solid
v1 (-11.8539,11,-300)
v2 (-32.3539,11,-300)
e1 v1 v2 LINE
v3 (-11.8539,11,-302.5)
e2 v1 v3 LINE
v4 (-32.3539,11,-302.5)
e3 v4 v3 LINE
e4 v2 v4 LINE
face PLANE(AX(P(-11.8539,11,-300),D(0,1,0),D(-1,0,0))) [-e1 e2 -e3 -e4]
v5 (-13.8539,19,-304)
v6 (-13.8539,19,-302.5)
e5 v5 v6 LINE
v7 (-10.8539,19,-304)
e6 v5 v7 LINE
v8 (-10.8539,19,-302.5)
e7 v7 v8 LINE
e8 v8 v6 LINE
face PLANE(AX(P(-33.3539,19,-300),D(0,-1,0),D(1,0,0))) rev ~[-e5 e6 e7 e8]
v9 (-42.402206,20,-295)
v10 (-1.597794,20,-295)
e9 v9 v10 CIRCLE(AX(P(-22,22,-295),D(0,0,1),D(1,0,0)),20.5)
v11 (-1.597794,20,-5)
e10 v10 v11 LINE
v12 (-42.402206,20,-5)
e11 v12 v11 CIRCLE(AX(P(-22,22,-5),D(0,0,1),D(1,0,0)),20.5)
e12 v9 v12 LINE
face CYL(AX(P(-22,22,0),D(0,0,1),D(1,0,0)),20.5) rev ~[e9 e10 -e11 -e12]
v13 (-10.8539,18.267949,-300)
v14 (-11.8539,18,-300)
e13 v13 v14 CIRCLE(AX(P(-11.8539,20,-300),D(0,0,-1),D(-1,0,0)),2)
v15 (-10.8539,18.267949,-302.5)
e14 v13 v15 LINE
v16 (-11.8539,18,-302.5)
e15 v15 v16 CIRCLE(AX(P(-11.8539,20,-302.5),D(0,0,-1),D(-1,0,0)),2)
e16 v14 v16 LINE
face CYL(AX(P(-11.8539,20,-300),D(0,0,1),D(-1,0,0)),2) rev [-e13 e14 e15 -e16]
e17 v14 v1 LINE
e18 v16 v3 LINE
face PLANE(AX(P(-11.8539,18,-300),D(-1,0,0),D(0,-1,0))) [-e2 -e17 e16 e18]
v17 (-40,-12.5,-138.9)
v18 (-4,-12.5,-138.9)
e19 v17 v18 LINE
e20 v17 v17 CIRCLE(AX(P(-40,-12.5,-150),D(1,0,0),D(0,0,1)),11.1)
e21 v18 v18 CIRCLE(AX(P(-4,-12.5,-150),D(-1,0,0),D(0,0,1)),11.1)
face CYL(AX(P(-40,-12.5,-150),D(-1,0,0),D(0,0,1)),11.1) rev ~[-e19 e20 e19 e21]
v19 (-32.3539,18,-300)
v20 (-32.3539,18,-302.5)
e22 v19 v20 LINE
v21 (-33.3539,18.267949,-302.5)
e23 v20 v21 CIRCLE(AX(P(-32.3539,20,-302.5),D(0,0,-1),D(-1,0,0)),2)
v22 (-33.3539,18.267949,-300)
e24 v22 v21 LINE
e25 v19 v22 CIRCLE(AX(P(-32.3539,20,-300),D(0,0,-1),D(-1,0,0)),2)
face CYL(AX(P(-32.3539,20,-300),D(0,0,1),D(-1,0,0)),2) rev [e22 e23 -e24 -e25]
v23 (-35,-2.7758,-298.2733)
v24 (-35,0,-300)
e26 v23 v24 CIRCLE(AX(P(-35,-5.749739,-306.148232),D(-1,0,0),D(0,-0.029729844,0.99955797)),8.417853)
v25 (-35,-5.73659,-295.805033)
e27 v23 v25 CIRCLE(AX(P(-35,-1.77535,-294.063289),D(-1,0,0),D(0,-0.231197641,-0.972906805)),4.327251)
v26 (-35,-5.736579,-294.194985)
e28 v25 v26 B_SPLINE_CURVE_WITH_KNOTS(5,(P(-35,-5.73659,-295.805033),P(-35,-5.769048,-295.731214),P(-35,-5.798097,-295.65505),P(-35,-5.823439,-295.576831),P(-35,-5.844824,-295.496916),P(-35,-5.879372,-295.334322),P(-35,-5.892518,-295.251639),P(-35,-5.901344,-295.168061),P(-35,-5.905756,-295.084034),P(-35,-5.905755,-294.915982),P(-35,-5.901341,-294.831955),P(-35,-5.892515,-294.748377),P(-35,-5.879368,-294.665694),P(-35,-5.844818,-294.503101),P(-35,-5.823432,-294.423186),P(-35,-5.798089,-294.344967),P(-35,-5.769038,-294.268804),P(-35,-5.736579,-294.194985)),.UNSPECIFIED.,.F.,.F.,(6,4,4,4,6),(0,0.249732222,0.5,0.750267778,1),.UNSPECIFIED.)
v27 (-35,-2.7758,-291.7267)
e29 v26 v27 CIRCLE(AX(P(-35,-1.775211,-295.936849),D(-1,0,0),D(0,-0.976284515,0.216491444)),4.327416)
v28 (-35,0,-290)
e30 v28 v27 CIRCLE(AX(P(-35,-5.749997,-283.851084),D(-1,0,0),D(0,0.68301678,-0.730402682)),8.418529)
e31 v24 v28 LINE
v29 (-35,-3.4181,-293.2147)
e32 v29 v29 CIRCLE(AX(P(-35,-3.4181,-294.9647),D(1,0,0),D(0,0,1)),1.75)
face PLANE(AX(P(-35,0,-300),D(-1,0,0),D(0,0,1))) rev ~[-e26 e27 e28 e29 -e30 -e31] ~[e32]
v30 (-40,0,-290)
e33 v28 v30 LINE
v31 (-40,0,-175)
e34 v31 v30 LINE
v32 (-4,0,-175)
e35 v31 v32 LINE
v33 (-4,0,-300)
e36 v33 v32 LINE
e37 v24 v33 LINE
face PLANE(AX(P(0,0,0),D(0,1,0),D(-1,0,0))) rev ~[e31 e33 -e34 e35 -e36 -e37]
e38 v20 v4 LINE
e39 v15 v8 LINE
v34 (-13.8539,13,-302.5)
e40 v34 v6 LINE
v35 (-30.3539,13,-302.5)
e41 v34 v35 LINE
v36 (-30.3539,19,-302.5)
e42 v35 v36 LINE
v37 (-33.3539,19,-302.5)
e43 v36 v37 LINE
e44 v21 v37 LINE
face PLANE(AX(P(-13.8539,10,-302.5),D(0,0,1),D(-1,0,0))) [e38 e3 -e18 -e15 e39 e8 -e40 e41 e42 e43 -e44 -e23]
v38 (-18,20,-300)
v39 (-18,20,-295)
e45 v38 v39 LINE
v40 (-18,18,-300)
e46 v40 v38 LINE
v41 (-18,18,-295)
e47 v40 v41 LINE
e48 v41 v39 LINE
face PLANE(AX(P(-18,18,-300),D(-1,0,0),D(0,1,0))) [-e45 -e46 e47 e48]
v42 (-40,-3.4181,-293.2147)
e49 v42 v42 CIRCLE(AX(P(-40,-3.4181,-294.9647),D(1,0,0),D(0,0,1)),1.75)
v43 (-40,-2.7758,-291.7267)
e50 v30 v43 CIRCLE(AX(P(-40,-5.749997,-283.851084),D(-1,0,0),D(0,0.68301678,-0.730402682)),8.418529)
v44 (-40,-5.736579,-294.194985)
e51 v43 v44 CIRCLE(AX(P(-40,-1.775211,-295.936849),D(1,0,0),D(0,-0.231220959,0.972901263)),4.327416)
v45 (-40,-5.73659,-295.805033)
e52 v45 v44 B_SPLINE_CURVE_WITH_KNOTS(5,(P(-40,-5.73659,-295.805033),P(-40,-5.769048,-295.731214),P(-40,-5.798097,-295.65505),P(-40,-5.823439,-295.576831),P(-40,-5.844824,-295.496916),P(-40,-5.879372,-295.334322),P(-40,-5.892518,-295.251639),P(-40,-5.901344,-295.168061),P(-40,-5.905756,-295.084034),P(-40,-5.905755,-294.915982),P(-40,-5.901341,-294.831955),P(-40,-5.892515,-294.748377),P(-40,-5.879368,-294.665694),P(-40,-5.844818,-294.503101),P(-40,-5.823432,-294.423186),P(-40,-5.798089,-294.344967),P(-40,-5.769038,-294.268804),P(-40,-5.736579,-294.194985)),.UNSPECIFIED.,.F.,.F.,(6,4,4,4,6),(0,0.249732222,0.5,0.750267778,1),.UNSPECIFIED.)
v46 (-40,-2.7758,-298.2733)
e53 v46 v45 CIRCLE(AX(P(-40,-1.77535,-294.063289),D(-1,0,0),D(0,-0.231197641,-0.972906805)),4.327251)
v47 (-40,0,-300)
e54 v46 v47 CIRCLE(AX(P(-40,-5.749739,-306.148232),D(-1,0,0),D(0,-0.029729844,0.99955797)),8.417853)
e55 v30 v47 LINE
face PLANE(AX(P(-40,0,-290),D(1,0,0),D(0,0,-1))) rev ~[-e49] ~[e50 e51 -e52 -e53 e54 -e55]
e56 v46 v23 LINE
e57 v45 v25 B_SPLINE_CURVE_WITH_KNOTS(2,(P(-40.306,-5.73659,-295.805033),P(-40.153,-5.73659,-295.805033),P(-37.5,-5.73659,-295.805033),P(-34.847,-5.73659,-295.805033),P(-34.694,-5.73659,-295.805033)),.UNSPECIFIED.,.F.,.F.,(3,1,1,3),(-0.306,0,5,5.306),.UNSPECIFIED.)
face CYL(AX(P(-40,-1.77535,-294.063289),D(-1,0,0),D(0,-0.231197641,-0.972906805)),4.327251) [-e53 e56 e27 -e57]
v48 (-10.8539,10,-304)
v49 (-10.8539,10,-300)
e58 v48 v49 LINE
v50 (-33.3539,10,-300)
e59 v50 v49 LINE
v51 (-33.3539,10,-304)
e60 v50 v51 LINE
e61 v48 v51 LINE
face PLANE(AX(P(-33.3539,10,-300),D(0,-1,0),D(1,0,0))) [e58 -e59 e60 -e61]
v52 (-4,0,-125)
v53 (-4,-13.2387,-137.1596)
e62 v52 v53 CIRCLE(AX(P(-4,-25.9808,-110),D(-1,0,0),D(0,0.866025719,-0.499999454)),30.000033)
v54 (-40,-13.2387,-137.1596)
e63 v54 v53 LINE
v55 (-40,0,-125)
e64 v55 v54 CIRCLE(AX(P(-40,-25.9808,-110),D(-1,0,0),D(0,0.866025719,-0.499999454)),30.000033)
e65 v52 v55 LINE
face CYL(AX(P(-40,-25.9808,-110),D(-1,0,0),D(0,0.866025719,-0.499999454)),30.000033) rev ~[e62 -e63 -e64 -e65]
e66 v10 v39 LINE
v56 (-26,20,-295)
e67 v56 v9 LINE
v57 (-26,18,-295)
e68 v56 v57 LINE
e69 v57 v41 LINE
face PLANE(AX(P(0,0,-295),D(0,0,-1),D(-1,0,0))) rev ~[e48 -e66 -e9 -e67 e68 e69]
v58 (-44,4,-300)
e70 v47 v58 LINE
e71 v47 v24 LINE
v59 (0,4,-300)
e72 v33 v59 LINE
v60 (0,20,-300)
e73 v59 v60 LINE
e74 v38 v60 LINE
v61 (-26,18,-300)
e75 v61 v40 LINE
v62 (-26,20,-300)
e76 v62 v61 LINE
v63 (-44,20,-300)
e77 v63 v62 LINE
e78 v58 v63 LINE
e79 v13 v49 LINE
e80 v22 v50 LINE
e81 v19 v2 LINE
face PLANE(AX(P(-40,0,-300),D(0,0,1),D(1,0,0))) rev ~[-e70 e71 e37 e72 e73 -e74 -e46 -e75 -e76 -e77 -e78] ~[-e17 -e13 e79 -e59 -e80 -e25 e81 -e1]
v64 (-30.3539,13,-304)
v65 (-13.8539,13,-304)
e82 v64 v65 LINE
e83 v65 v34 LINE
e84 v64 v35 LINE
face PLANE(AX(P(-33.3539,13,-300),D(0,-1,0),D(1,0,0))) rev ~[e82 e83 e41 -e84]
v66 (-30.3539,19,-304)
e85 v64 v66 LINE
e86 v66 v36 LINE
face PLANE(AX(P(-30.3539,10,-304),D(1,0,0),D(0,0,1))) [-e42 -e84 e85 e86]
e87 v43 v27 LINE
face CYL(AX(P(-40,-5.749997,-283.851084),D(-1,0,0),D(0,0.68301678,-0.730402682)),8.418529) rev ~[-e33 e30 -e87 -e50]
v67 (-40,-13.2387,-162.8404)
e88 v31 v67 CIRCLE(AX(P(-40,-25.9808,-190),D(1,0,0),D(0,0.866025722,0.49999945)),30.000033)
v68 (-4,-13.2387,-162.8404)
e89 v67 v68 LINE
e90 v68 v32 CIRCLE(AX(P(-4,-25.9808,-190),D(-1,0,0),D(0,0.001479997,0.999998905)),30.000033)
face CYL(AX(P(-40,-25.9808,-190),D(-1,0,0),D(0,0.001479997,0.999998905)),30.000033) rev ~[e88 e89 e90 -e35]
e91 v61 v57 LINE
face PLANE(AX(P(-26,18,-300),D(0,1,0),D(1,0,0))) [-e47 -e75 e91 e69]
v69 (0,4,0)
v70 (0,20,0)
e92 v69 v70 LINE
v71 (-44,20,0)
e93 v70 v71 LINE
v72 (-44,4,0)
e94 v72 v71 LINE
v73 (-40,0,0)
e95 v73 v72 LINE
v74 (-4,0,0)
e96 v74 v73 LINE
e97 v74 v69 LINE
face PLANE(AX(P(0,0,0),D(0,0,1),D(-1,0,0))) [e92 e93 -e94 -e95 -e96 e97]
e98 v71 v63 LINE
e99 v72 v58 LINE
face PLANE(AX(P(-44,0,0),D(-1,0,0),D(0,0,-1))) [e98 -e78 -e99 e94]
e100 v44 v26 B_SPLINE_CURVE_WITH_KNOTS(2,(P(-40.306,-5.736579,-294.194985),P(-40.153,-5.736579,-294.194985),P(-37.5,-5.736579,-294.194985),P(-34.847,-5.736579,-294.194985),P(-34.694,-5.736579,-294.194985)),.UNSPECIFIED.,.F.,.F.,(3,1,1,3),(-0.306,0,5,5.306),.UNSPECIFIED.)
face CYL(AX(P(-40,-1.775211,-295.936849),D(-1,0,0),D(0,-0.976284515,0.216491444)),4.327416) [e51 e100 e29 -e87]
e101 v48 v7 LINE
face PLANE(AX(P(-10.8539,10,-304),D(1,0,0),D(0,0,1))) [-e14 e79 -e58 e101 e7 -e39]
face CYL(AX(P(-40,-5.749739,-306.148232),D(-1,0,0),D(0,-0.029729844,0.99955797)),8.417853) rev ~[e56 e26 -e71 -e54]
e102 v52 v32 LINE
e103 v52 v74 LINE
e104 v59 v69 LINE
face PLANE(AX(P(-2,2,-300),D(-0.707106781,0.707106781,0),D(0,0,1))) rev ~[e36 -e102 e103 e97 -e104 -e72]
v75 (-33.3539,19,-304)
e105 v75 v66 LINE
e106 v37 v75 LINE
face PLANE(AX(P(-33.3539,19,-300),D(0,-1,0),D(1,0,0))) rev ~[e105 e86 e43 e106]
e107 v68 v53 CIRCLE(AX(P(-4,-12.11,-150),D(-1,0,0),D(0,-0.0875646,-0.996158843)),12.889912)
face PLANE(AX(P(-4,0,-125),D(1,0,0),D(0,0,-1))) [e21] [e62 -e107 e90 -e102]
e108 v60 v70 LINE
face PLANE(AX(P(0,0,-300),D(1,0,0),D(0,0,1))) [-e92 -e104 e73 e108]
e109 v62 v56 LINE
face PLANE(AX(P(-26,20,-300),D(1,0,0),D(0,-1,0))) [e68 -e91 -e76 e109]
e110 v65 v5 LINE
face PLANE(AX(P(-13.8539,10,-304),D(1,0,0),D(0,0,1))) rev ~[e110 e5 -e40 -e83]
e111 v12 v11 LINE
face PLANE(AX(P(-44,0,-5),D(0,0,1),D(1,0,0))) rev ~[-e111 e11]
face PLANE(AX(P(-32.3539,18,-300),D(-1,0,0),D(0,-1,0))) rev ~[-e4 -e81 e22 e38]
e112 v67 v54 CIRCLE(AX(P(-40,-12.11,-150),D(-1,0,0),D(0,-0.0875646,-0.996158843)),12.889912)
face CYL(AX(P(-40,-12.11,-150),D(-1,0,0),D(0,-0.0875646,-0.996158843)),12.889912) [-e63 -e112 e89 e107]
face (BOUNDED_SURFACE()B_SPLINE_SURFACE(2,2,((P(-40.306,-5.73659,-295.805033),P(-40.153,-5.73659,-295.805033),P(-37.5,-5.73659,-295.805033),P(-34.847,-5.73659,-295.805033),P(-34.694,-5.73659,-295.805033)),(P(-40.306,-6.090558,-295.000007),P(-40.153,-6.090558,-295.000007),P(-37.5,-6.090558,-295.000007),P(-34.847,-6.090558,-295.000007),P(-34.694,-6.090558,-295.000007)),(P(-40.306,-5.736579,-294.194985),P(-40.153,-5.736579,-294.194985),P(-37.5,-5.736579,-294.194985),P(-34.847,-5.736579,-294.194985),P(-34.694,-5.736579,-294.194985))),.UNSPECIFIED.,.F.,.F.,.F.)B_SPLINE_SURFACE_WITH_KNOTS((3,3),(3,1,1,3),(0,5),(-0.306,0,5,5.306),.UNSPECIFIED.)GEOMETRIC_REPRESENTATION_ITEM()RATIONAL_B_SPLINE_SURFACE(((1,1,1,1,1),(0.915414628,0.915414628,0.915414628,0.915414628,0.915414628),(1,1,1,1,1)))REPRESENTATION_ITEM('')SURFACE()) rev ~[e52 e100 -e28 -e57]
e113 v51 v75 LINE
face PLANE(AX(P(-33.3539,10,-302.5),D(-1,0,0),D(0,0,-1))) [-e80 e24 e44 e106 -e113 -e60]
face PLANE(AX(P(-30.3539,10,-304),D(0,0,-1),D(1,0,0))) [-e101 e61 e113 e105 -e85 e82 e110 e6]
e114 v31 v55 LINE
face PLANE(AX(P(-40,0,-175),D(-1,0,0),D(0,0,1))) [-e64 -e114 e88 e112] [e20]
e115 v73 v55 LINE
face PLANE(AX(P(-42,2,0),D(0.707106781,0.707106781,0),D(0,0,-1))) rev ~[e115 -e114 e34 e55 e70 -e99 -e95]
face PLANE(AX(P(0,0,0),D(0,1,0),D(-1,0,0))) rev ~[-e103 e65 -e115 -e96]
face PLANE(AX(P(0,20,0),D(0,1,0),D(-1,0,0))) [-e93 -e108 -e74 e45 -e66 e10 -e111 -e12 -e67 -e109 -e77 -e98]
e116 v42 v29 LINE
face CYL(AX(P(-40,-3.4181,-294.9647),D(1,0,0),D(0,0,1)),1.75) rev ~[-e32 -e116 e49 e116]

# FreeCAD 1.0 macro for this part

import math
import FreeCAD as App
import Part
import Sketcher
Q = App.Units.Quantity


def edges_at(feature, points):
    """Names of the edges that pass closest to the given points."""
    edges = feature.Shape.Edges
    near = lambda p: min(range(len(edges)), key=lambda i: edges[i].distToShape(Part.Vertex(*p))[0])
    return sorted({f"Edge{near(p) + 1}" for p in points})

doc = App.newDocument("Part")
params = doc.addObject("Spreadsheet::Sheet", "Params")
for row, (alias, value) in enumerate([
    ("sketch1_width", "44 mm"),
    ("sketch1_height", "300 mm"),
    ("pad1_length", "20 mm"),
    ("sketch2_diameter", "41 mm"),
    ("pocket1_length", "300 mm"),
    ("sketch3_width", "44 mm"),
    ("sketch3_height", "20 mm"),
    ("pad2_length", "5 mm"),
    ("sketch4_width", "44 mm"),
    ("sketch4_height", "20 mm"),
    ("pad3_length", "5 mm"),
    ("chamfer_size", "4 mm"),
    ("chamfer2_size", "4 mm"),
    ("sketch5_radius", "2 mm"),
    ("sketch5_width", "20.5 mm"),
    ("sketch5_width2", "1 mm"),
    ("pad4_length", "2.5 mm"),
    ("sketch6_height", "1.5 mm"),
    ("sketch6_width", "16.5 mm"),
    ("pad5_length", "3 mm"),
    ("sketch7_width", "3 mm"),
    ("sketch7_height", "1.5 mm"),
    ("pad6_length", "9 mm"),
    ("sketch8_width", "5 mm"),
    ("sketch8_height", "10 mm"),
    ("pad7_length", "6 mm"),
    ("sketch9_diameter", "3.5 mm"),
    ("hole_diameter", "3.5 mm"),
    ("sketch10_width", "6 mm"),
    ("sketch10_height", "5 mm"),
    ("pocket2_length", "6 mm"),
    ("fillet_radius", "2 mm"),
    ("sketch11_width", "36 mm"),
    ("sketch11_height", "50 mm"),
    ("pad8_length", "25 mm"),
    ("sketch12_radius", "30 mm"),
    ("sketch12_diameter", "22.2 mm"),
    ("sketch12_width", "25 mm"),
    ("sketch12_radius2", "12.89 mm"),
    ("sketch13_height", "2 mm"),
    ("sketch13_width", "8 mm"),
    ("pocket4_length", "10 mm"),
], start=1):
    params.set(f"A{row}", alias)
    params.set(f"B{row}", "=" + value)
    params.setAlias(f"B{row}", alias)

body = doc.addObject("PartDesign::Body", "Body")

# Sketch on XZ plane
sketch1 = body.newObject("Sketcher::SketchObject", "Sketch")
sketch1.AttachmentSupport = (doc.getObject("XZ_Plane"), [""])
sketch1.MapMode = "FlatFace"
sketch1.addGeometry(Part.LineSegment(App.Vector(-44, 0, 0), App.Vector(0, 0, 0)), False)
sketch1.addGeometry(Part.LineSegment(App.Vector(0, 0, 0), App.Vector(0, -300, 0)), False)
sketch1.addGeometry(Part.LineSegment(App.Vector(0, -300, 0), App.Vector(-44, -300, 0)), False)
sketch1.addGeometry(Part.LineSegment(App.Vector(-44, -300, 0), App.Vector(-44, 0, 0)), False)
sketch1.addConstraint(Sketcher.Constraint("Coincident", 0, 2, 1, 1))
sketch1.addConstraint(Sketcher.Constraint("Coincident", 1, 2, 2, 1))
sketch1.addConstraint(Sketcher.Constraint("Coincident", 2, 2, 3, 1))
sketch1.addConstraint(Sketcher.Constraint("Coincident", 3, 2, 0, 1))
sketch1.addConstraint(Sketcher.Constraint("Horizontal", 0))
sketch1.addConstraint(Sketcher.Constraint("Vertical", 1))
sketch1.addConstraint(Sketcher.Constraint("Horizontal", 2))
sketch1.addConstraint(Sketcher.Constraint("Vertical", 3))
sketch1.addConstraint(Sketcher.Constraint("Coincident", 0, 2, -1, 1))
sketch1.addConstraint(Sketcher.Constraint("DistanceX", 0, 1, 0, 2, Q("44 mm")))
sketch1.addConstraint(Sketcher.Constraint("DistanceY", 1, 2, 1, 1, Q("300 mm")))
sketch1.setExpression("Constraints[9]", "Params.sketch1_width")
sketch1.setExpression("Constraints[10]", "Params.sketch1_height")
pad1 = body.newObject("PartDesign::Pad", "Pad")
pad1.Profile = sketch1
pad1.setExpression("Length", "Params.pad1_length")
pad1.Reversed = True

# Sketch on XY plane
sketch2 = body.newObject("Sketcher::SketchObject", "Sketch001")
sketch2.AttachmentSupport = (doc.getObject("XY_Plane"), [""])
sketch2.MapMode = "FlatFace"
sketch2.addGeometry(Part.Circle(App.Vector(-22, 22, 0), App.Vector(0, 0, 1), 20), False)
sketch2.addConstraint(Sketcher.Constraint("Diameter", 0, Q("41 mm")))
sketch2.addConstraint(Sketcher.Constraint("DistanceX", 0, 3, -1, 1, Q("22 mm")))
sketch2.addConstraint(Sketcher.Constraint("DistanceY", -1, 1, 0, 3, Q("22 mm")))
sketch2.setExpression("Constraints[0]", "Params.sketch2_diameter")
pocket1 = body.newObject("PartDesign::Pocket", "Pocket")
pocket1.Profile = sketch2
pocket1.setExpression("Length", "Params.pocket1_length")

# Sketch on XY plane
sketch3 = body.newObject("Sketcher::SketchObject", "Sketch002")
sketch3.AttachmentSupport = (doc.getObject("XY_Plane"), [""])
sketch3.MapMode = "FlatFace"
sketch3.addGeometry(Part.LineSegment(App.Vector(-44, 20, 0), App.Vector(-44, 0, 0)), False)
sketch3.addGeometry(Part.LineSegment(App.Vector(-44, 0, 0), App.Vector(0, 0, 0)), False)
sketch3.addGeometry(Part.LineSegment(App.Vector(0, 0, 0), App.Vector(0, 20, 0)), False)
sketch3.addGeometry(Part.LineSegment(App.Vector(0, 20, 0), App.Vector(-44, 20, 0)), False)
sketch3.addConstraint(Sketcher.Constraint("Coincident", 0, 2, 1, 1))
sketch3.addConstraint(Sketcher.Constraint("Coincident", 1, 2, 2, 1))
sketch3.addConstraint(Sketcher.Constraint("Coincident", 2, 2, 3, 1))
sketch3.addConstraint(Sketcher.Constraint("Coincident", 3, 2, 0, 1))
sketch3.addConstraint(Sketcher.Constraint("Vertical", 0))
sketch3.addConstraint(Sketcher.Constraint("Horizontal", 1))
sketch3.addConstraint(Sketcher.Constraint("Vertical", 2))
sketch3.addConstraint(Sketcher.Constraint("Horizontal", 3))
sketch3.addConstraint(Sketcher.Constraint("Coincident", 1, 2, -1, 1))
sketch3.addConstraint(Sketcher.Constraint("DistanceX", 1, 1, 1, 2, Q("44 mm")))
sketch3.addConstraint(Sketcher.Constraint("DistanceY", 0, 2, 0, 1, Q("20 mm")))
sketch3.setExpression("Constraints[9]", "Params.sketch3_width")
sketch3.setExpression("Constraints[10]", "Params.sketch3_height")
pad2 = body.newObject("PartDesign::Pad", "Pad001")
pad2.Profile = sketch3
pad2.setExpression("Length", "Params.pad2_length")
pad2.Reversed = True

# Sketch on XY plane
sketch4 = body.newObject("Sketcher::SketchObject", "Sketch003")
sketch4.AttachmentSupport = (doc.getObject("XY_Plane"), [""])
sketch4.MapMode = "FlatFace"
sketch4.AttachmentOffset = App.Placement(App.Vector(0, 0, -300), App.Rotation())
sketch4.addGeometry(Part.LineSegment(App.Vector(0, 20, 0), App.Vector(0, 0, 0)), False)
sketch4.addGeometry(Part.LineSegment(App.Vector(0, 0, 0), App.Vector(-44, 0, 0)), False)
sketch4.addGeometry(Part.LineSegment(App.Vector(-44, 0, 0), App.Vector(-44, 20, 0)), False)
sketch4.addGeometry(Part.LineSegment(App.Vector(-44, 20, 0), App.Vector(0, 20, 0)), False)
sketch4.addConstraint(Sketcher.Constraint("Coincident", 0, 2, 1, 1))
sketch4.addConstraint(Sketcher.Constraint("Coincident", 1, 2, 2, 1))
sketch4.addConstraint(Sketcher.Constraint("Coincident", 2, 2, 3, 1))
sketch4.addConstraint(Sketcher.Constraint("Coincident", 3, 2, 0, 1))
sketch4.addConstraint(Sketcher.Constraint("Vertical", 0))
sketch4.addConstraint(Sketcher.Constraint("Horizontal", 1))
sketch4.addConstraint(Sketcher.Constraint("Vertical", 2))
sketch4.addConstraint(Sketcher.Constraint("Horizontal", 3))
sketch4.addConstraint(Sketcher.Constraint("Coincident", 0, 2, -1, 1))
sketch4.addConstraint(Sketcher.Constraint("DistanceX", 1, 2, 1, 1, Q("44 mm")))
sketch4.addConstraint(Sketcher.Constraint("DistanceY", 0, 2, 0, 1, Q("20 mm")))
sketch4.setExpression("Constraints[9]", "Params.sketch4_width")
sketch4.setExpression("Constraints[10]", "Params.sketch4_height")
pad3 = body.newObject("PartDesign::Pad", "Pad002")
pad3.Profile = sketch4
pad3.setExpression("Length", "Params.pad3_length")
doc.recompute()

chamfer = body.newObject("PartDesign::Chamfer", "Chamfer")
chamfer.Base = (pad3, edges_at(pad3, [(0, 0, -150)]))
chamfer.setExpression("Size", "Params.chamfer_size")
doc.recompute()

chamfer2 = body.newObject("PartDesign::Chamfer", "Chamfer001")
chamfer2.Base = (chamfer, edges_at(chamfer, [(-44, 0, -150)]))
chamfer2.setExpression("Size", "Params.chamfer2_size")

# Sketch on XY plane
sketch5 = body.newObject("Sketcher::SketchObject", "Sketch004")
sketch5.AttachmentSupport = (doc.getObject("XY_Plane"), [""])
sketch5.MapMode = "FlatFace"
sketch5.AttachmentOffset = App.Placement(App.Vector(0, 0, -300), App.Rotation())
sketch5.addGeometry(Part.ArcOfCircle(Part.Circle(App.Vector(-11.9, 20, 0), App.Vector(0, 0, 1), 2), math.radians(-90), math.radians(-60)), False)
sketch5.addGeometry(Part.LineSegment(App.Vector(-10.9, 18.3, 0), App.Vector(-10.9, 10, 0)), False)
sketch5.addGeometry(Part.LineSegment(App.Vector(-10.9, 10, 0), App.Vector(-33.4, 10, 0)), False)
sketch5.addGeometry(Part.LineSegment(App.Vector(-33.4, 10, 0), App.Vector(-33.4, 18.3, 0)), False)
sketch5.addGeometry(Part.ArcOfCircle(Part.Circle(App.Vector(-32.4, 20, 0), App.Vector(0, 0, 1), 2), math.radians(-120), math.radians(-90)), False)
sketch5.addGeometry(Part.LineSegment(App.Vector(-32.4, 18, 0), App.Vector(-32.4, 11, 0)), False)
sketch5.addGeometry(Part.LineSegment(App.Vector(-32.4, 11, 0), App.Vector(-11.9, 11, 0)), False)
sketch5.addGeometry(Part.LineSegment(App.Vector(-11.9, 11, 0), App.Vector(-11.9, 18, 0)), False)
sketch5.addConstraint(Sketcher.Constraint("Coincident", 0, 2, 1, 1))
sketch5.addConstraint(Sketcher.Constraint("Coincident", 1, 2, 2, 1))
sketch5.addConstraint(Sketcher.Constraint("Coincident", 2, 2, 3, 1))
sketch5.addConstraint(Sketcher.Constraint("Coincident", 3, 2, 4, 1))
sketch5.addConstraint(Sketcher.Constraint("Coincident", 4, 2, 5, 1))
sketch5.addConstraint(Sketcher.Constraint("Coincident", 5, 2, 6, 1))
sketch5.addConstraint(Sketcher.Constraint("Coincident", 6, 2, 7, 1))
sketch5.addConstraint(Sketcher.Constraint("Coincident", 7, 2, 0, 1))
sketch5.addConstraint(Sketcher.Constraint("Vertical", 1))
sketch5.addConstraint(Sketcher.Constraint("Horizontal", 2))
sketch5.addConstraint(Sketcher.Constraint("Vertical", 3))
sketch5.addConstraint(Sketcher.Constraint("Vertical", 5))
sketch5.addConstraint(Sketcher.Constraint("Horizontal", 6))
sketch5.addConstraint(Sketcher.Constraint("Vertical", 7))
sketch5.addConstraint(Sketcher.Constraint("Equal", 0, 4))
sketch5.addConstraint(Sketcher.Constraint("Horizontal", 0, 3, 4, 3))
sketch5.addConstraint(Sketcher.Constraint("Horizontal", 0, 2, 3, 2))
sketch5.addConstraint(Sketcher.Constraint("Vertical", 0, 3, 6, 2))
sketch5.addConstraint(Sketcher.Constraint("Radius", 0, Q("2 mm")))
sketch5.addConstraint(Sketcher.Constraint("DistanceX", 6, 1, 6, 2, Q("20.5 mm")))
sketch5.addConstraint(Sketcher.Constraint("DistanceY", -1, 1, 0, 3, Q("20 mm")))
sketch5.addConstraint(Sketcher.Constraint("DistanceX", 0, 3, 0, 2, Q("1 mm")))
sketch5.addConstraint(Sketcher.Constraint("DistanceX", 3, 2, 4, 2, Q("1 mm")))
sketch5.addConstraint(Sketcher.Constraint("DistanceY", 2, 2, 5, 2, Q("1 mm")))
sketch5.addConstraint(Sketcher.Constraint("DistanceY", 5, 2, 4, 3, Q("9 mm")))
sketch5.addConstraint(Sketcher.Constraint("DistanceX", 0, 3, -1, 1, Q("11.854 mm")))
sketch5.setExpression("Constraints[18]", "Params.sketch5_radius")
sketch5.setExpression("Constraints[19]", "Params.sketch5_width")
sketch5.setExpression("Constraints[21]", "Params.sketch5_width2")
pad4 = body.newObject("PartDesign::Pad", "Pad003")
pad4.Profile = sketch5
pad4.setExpression("Length", "Params.pad4_length")
pad4.Reversed = True

# Sketch on XZ plane
sketch6 = body.newObject("Sketcher::SketchObject", "Sketch005")
sketch6.AttachmentSupport = (doc.getObject("XZ_Plane"), [""])
sketch6.MapMode = "FlatFace"
sketch6.AttachmentOffset = App.Placement(App.Vector(0, 0, -10), App.Rotation())
sketch6.addGeometry(Part.LineSegment(App.Vector(-13.9, -304, 0), App.Vector(-13.9, -302.5, 0)), False)
sketch6.addGeometry(Part.LineSegment(App.Vector(-13.9, -302.5, 0), App.Vector(-30.4, -302.5, 0)), False)
sketch6.addGeometry(Part.LineSegment(App.Vector(-30.4, -302.5, 0), App.Vector(-30.4, -304, 0)), False)
sketch6.addGeometry(Part.LineSegment(App.Vector(-30.4, -304, 0), App.Vector(-13.9, -304, 0)), False)
sketch6.addConstraint(Sketcher.Constraint("Coincident", 0, 2, 1, 1))
sketch6.addConstraint(Sketcher.Constraint("Coincident", 1, 2, 2, 1))
sketch6.addConstraint(Sketcher.Constraint("Coincident", 2, 2, 3, 1))
sketch6.addConstraint(Sketcher.Constraint("Coincident", 3, 2, 0, 1))
sketch6.addConstraint(Sketcher.Constraint("Vertical", 0))
sketch6.addConstraint(Sketcher.Constraint("Horizontal", 1))
sketch6.addConstraint(Sketcher.Constraint("Vertical", 2))
sketch6.addConstraint(Sketcher.Constraint("Horizontal", 3))
sketch6.addConstraint(Sketcher.Constraint("DistanceY", 0, 1, 0, 2, Q("1.5 mm")))
sketch6.addConstraint(Sketcher.Constraint("DistanceX", 1, 2, 1, 1, Q("16.5 mm")))
sketch6.addConstraint(Sketcher.Constraint("DistanceY", 2, 2, -1, 1, Q("304 mm")))
sketch6.addConstraint(Sketcher.Constraint("DistanceX", 0, 2, -1, 1, Q("13.854 mm")))
sketch6.setExpression("Constraints[8]", "Params.sketch6_height")
sketch6.setExpression("Constraints[9]", "Params.sketch6_width")
pad5 = body.newObject("PartDesign::Pad", "Pad004")
pad5.Profile = sketch6
pad5.setExpression("Length", "Params.pad5_length")
pad5.Reversed = True

# Sketch on XZ plane
sketch7 = body.newObject("Sketcher::SketchObject", "Sketch006")
sketch7.AttachmentSupport = (doc.getObject("XZ_Plane"), [""])
sketch7.MapMode = "FlatFace"
sketch7.AttachmentOffset = App.Placement(App.Vector(0, 0, -10), App.Rotation())
sketch7.addGeometry(Part.LineSegment(App.Vector(-10.9, -304, 0), App.Vector(-10.9, -302.5, 0)), False)
sketch7.addGeometry(Part.LineSegment(App.Vector(-10.9, -302.5, 0), App.Vector(-13.9, -302.5, 0)), False)
sketch7.addGeometry(Part.LineSegment(App.Vector(-13.9, -302.5, 0), App.Vector(-13.9, -304, 0)), False)
sketch7.addGeometry(Part.LineSegment(App.Vector(-13.9, -304, 0), App.Vector(-10.9, -304, 0)), False)
sketch7.addGeometry(Part.LineSegment(App.Vector(-30.4, -304, 0), App.Vector(-30.4, -302.5, 0)), False)
sketch7.addGeometry(Part.LineSegment(App.Vector(-30.4, -302.5, 0), App.Vector(-33.4, -302.5, 0)), False)
sketch7.addGeometry(Part.LineSegment(App.Vector(-33.4, -302.5, 0), App.Vector(-33.4, -304, 0)), False)
sketch7.addGeometry(Part.LineSegment(App.Vector(-33.4, -304, 0), App.Vector(-30.4, -304, 0)), False)
sketch7.addConstraint(Sketcher.Constraint("Coincident", 0, 2, 1, 1))
sketch7.addConstraint(Sketcher.Constraint("Coincident", 1, 2, 2, 1))
sketch7.addConstraint(Sketcher.Constraint("Coincident", 2, 2, 3, 1))
sketch7.addConstraint(Sketcher.Constraint("Coincident", 3, 2, 0, 1))
sketch7.addConstraint(Sketcher.Constraint("Coincident", 4, 2, 5, 1))
sketch7.addConstraint(Sketcher.Constraint("Coincident", 5, 2, 6, 1))
sketch7.addConstraint(Sketcher.Constraint("Coincident", 6, 2, 7, 1))
sketch7.addConstraint(Sketcher.Constraint("Coincident", 7, 2, 4, 1))
sketch7.addConstraint(Sketcher.Constraint("Vertical", 0))
sketch7.addConstraint(Sketcher.Constraint("Horizontal", 1))
sketch7.addConstraint(Sketcher.Constraint("Vertical", 2))
sketch7.addConstraint(Sketcher.Constraint("Horizontal", 3))
sketch7.addConstraint(Sketcher.Constraint("Vertical", 4))
sketch7.addConstraint(Sketcher.Constraint("Horizontal", 5))
sketch7.addConstraint(Sketcher.Constraint("Vertical", 6))
sketch7.addConstraint(Sketcher.Constraint("Horizontal", 7))
sketch7.addConstraint(Sketcher.Constraint("Horizontal", 1, 2, 4, 2))
sketch7.addConstraint(Sketcher.Constraint("Horizontal", 3, 2, 6, 2))
sketch7.addConstraint(Sketcher.Constraint("Equal", 3, 5))
sketch7.addConstraint(Sketcher.Constraint("DistanceX", 1, 2, 1, 1, Q("3 mm")))
sketch7.addConstraint(Sketcher.Constraint("DistanceY", 0, 1, 0, 2, Q("1.5 mm")))
sketch7.addConstraint(Sketcher.Constraint("DistanceY", 2, 2, -1, 1, Q("304 mm")))
sketch7.addConstraint(Sketcher.Constraint("DistanceX", 4, 2, 1, 2, Q("16.5 mm")))
sketch7.addConstraint(Sketcher.Constraint("DistanceX", 0, 2, -1, 1, Q("10.854 mm")))
sketch7.setExpression("Constraints[19]", "Params.sketch7_width")
sketch7.setExpression("Constraints[20]", "Params.sketch7_height")
pad6 = body.newObject("PartDesign::Pad", "Pad005")
pad6.Profile = sketch7
pad6.setExpression("Length", "Params.pad6_length")
pad6.Reversed = True

# Sketch on XZ plane
sketch8 = body.newObject("Sketcher::SketchObject", "Sketch007")
sketch8.AttachmentSupport = (doc.getObject("XZ_Plane"), [""])
sketch8.MapMode = "FlatFace"
sketch8.addGeometry(Part.LineSegment(App.Vector(-40, -290, 0), App.Vector(-40, -300, 0)), False)
sketch8.addGeometry(Part.LineSegment(App.Vector(-40, -300, 0), App.Vector(-35, -300, 0)), False)
sketch8.addGeometry(Part.LineSegment(App.Vector(-35, -300, 0), App.Vector(-35, -290, 0)), False)
sketch8.addGeometry(Part.LineSegment(App.Vector(-35, -290, 0), App.Vector(-40, -290, 0)), False)
sketch8.addConstraint(Sketcher.Constraint("Coincident", 0, 2, 1, 1))
sketch8.addConstraint(Sketcher.Constraint("Coincident", 1, 2, 2, 1))
sketch8.addConstraint(Sketcher.Constraint("Coincident", 2, 2, 3, 1))
sketch8.addConstraint(Sketcher.Constraint("Coincident", 3, 2, 0, 1))
sketch8.addConstraint(Sketcher.Constraint("Vertical", 0))
sketch8.addConstraint(Sketcher.Constraint("Horizontal", 1))
sketch8.addConstraint(Sketcher.Constraint("Vertical", 2))
sketch8.addConstraint(Sketcher.Constraint("Horizontal", 3))
sketch8.addConstraint(Sketcher.Constraint("DistanceX", 1, 1, 1, 2, Q("5 mm")))
sketch8.addConstraint(Sketcher.Constraint("DistanceY", 0, 2, 0, 1, Q("10 mm")))
sketch8.addConstraint(Sketcher.Constraint("DistanceX", 0, 2, -1, 1, Q("40 mm")))
sketch8.addConstraint(Sketcher.Constraint("DistanceY", 0, 2, -1, 1, Q("300 mm")))
sketch8.setExpression("Constraints[8]", "Params.sketch8_width")
sketch8.setExpression("Constraints[9]", "Params.sketch8_height")
pad7 = body.newObject("PartDesign::Pad", "Pad006")
pad7.Profile = sketch8
pad7.setExpression("Length", "Params.pad7_length")

# Sketch on YZ plane
sketch9 = body.newObject("Sketcher::SketchObject", "Sketch008")
sketch9.AttachmentSupport = (doc.getObject("YZ_Plane"), [""])
sketch9.MapMode = "FlatFace"
sketch9.AttachmentOffset = App.Placement(App.Vector(0, 0, -40), App.Rotation())
sketch9.addGeometry(Part.Circle(App.Vector(-3.4, -295, 0), App.Vector(0, 0, 1), 1.8), False)
sketch9.addConstraint(Sketcher.Constraint("Diameter", 0, Q("3.5 mm")))
sketch9.addConstraint(Sketcher.Constraint("DistanceX", 0, 3, -1, 1, Q("3.418 mm")))
sketch9.addConstraint(Sketcher.Constraint("DistanceY", 0, 3, -1, 1, Q("294.9647 mm")))
sketch9.setExpression("Constraints[0]", "Params.sketch9_diameter")
doc.recompute()
hole = body.newObject("PartDesign::Hole", "Hole")
hole.Profile = sketch9
hole.ThreadType = "None"
hole.setExpression("Diameter", "Params.hole_diameter")
hole.DepthType = "ThroughAll"
hole.Reversed = True

# Sketch on YZ plane
sketch10 = body.newObject("Sketcher::SketchObject", "Sketch009")
sketch10.AttachmentSupport = (doc.getObject("YZ_Plane"), [""])
sketch10.MapMode = "FlatFace"
sketch10.AttachmentOffset = App.Placement(App.Vector(0, 0, -40), App.Rotation())
sketch10.addGeometry(Part.LineSegment(App.Vector(-6, -290, 0), App.Vector(0, -290, 0)), False)
sketch10.addGeometry(Part.ArcOfCircle(Part.Circle(App.Vector(-5.7, -283.9, 0), App.Vector(0, 0, 1), 8.4), math.radians(-69), math.radians(-47)), False)
sketch10.addGeometry(Part.ArcOfCircle(Part.Circle(App.Vector(-1.8, -295.9, 0), App.Vector(0, 0, 1), 4.3), math.radians(103), math.radians(167)), False)
sketch10.addGeometry(Part.LineSegment(App.Vector(-6, -295, 0), App.Vector(-6, -290, 0)), False)
sketch10.addGeometry(Part.ArcOfCircle(Part.Circle(App.Vector(-5.7, -306.1, 0), App.Vector(0, 0, 1), 8.4), math.radians(47), math.radians(69)), False)
sketch10.addGeometry(Part.LineSegment(App.Vector(0, -300, 0), App.Vector(-6, -300, 0)), False)
sketch10.addGeometry(Part.LineSegment(App.Vector(-6, -300, 0), App.Vector(-6, -295, 0)), False)
sketch10.addGeometry(Part.ArcOfCircle(Part.Circle(App.Vector(-1.8, -294.1, 0), App.Vector(0, 0, 1), 4.3), math.radians(-167), math.radians(-103)), False)
sketch10.addConstraint(Sketcher.Constraint("Coincident", 0, 2, 1, 2))
sketch10.addConstraint(Sketcher.Constraint("Coincident", 1, 1, 2, 1))
sketch10.addConstraint(Sketcher.Constraint("Coincident", 2, 2, 3, 1))
sketch10.addConstraint(Sketcher.Constraint("Coincident", 3, 2, 0, 1))
sketch10.addConstraint(Sketcher.Constraint("Coincident", 4, 1, 5, 1))
sketch10.addConstraint(Sketcher.Constraint("Coincident", 5, 2, 6, 1))
sketch10.addConstraint(Sketcher.Constraint("Coincident", 6, 2, 7, 1))
sketch10.addConstraint(Sketcher.Constraint("Coincident", 7, 2, 4, 2))
sketch10.addConstraint(Sketcher.Constraint("Horizontal", 0))
sketch10.addConstraint(Sketcher.Constraint("Vertical", 3))
sketch10.addConstraint(Sketcher.Constraint("Horizontal", 5))
sketch10.addConstraint(Sketcher.Constraint("Vertical", 6))
sketch10.addConstraint(Sketcher.Constraint("Coincident", 6, 2, 2, 2))
sketch10.addConstraint(Sketcher.Constraint("Equal", 1, 4))
sketch10.addConstraint(Sketcher.Constraint("Equal", 2, 7))
sketch10.addConstraint(Sketcher.Constraint("PointOnObject", 0, 2, -2))
sketch10.addConstraint(Sketcher.Constraint("PointOnObject", 4, 1, -2))
sketch10.addConstraint(Sketcher.Constraint("Vertical", 1, 3, 4, 3))
sketch10.addConstraint(Sketcher.Constraint("Vertical", 2, 3, 7, 3))
sketch10.addConstraint(Sketcher.Constraint("Vertical", 1, 1, 7, 2))
sketch10.addConstraint(Sketcher.Constraint("Radius", 1, Q("8.4182 mm")))
sketch10.addConstraint(Sketcher.Constraint("Radius", 2, Q("4.3273 mm")))
sketch10.addConstraint(Sketcher.Constraint("DistanceX", 0, 1, 0, 2, Q("6 mm")))
sketch10.addConstraint(Sketcher.Constraint("DistanceY", 3, 1, 3, 2, Q("5 mm")))
sketch10.addConstraint(Sketcher.Constraint("DistanceY", 0, 2, -1, 1, Q("290 mm")))
sketch10.addConstraint(Sketcher.Constraint("DistanceY", 2, 3, 0, 2, Q("5.9368 mm")))
sketch10.addConstraint(Sketcher.Constraint("DistanceY", 1, 1, 0, 2, Q("1.7267 mm")))
sketch10.setExpression("Constraints[22]", "Params.sketch10_width")
sketch10.setExpression("Constraints[23]", "Params.sketch10_height")
pocket2 = body.newObject("PartDesign::Pocket", "Pocket001")
pocket2.Profile = sketch10
pocket2.setExpression("Length", "Params.pocket2_length")
pocket2.Reversed = True
doc.recompute()

fillet = body.newObject("PartDesign::Fillet", "Fillet")
fillet.Base = (pocket2, edges_at(pocket2, [(-37.5, -6, -295)]))
fillet.setExpression("Radius", "Params.fillet_radius")

# Sketch on XZ plane
sketch11 = body.newObject("Sketcher::SketchObject", "Sketch010")
sketch11.AttachmentSupport = (doc.getObject("XZ_Plane"), [""])
sketch11.MapMode = "FlatFace"
sketch11.addGeometry(Part.LineSegment(App.Vector(-40, -125, 0), App.Vector(-40, -175, 0)), False)
sketch11.addGeometry(Part.LineSegment(App.Vector(-40, -175, 0), App.Vector(-4, -175, 0)), False)
sketch11.addGeometry(Part.LineSegment(App.Vector(-4, -175, 0), App.Vector(-4, -125, 0)), False)
sketch11.addGeometry(Part.LineSegment(App.Vector(-4, -125, 0), App.Vector(-40, -125, 0)), False)
sketch11.addConstraint(Sketcher.Constraint("Coincident", 0, 2, 1, 1))
sketch11.addConstraint(Sketcher.Constraint("Coincident", 1, 2, 2, 1))
sketch11.addConstraint(Sketcher.Constraint("Coincident", 2, 2, 3, 1))
sketch11.addConstraint(Sketcher.Constraint("Coincident", 3, 2, 0, 1))
sketch11.addConstraint(Sketcher.Constraint("Vertical", 0))
sketch11.addConstraint(Sketcher.Constraint("Horizontal", 1))
sketch11.addConstraint(Sketcher.Constraint("Vertical", 2))
sketch11.addConstraint(Sketcher.Constraint("Horizontal", 3))
sketch11.addConstraint(Sketcher.Constraint("DistanceY", 2, 2, -1, 1, Q("125 mm")))
sketch11.addConstraint(Sketcher.Constraint("DistanceX", 1, 1, 1, 2, Q("36 mm")))
sketch11.addConstraint(Sketcher.Constraint("DistanceY", 0, 2, 0, 1, Q("50 mm")))
sketch11.addConstraint(Sketcher.Constraint("DistanceX", 0, 2, -1, 1, Q("40 mm")))
sketch11.setExpression("Constraints[9]", "Params.sketch11_width")
sketch11.setExpression("Constraints[10]", "Params.sketch11_height")
pad8 = body.newObject("PartDesign::Pad", "Pad007")
pad8.Profile = sketch11
pad8.setExpression("Length", "Params.pad8_length")

# Sketch on YZ plane
sketch12 = body.newObject("Sketcher::SketchObject", "Sketch011")
sketch12.AttachmentSupport = (doc.getObject("YZ_Plane"), [""])
sketch12.MapMode = "FlatFace"
sketch12.AttachmentOffset = App.Placement(App.Vector(0, 0, -40), App.Rotation())
sketch12.addGeometry(Part.LineSegment(App.Vector(0, -175, 0), App.Vector(-25, -175, 0)), False)
sketch12.addGeometry(Part.LineSegment(App.Vector(-25, -175, 0), App.Vector(-25, -150, 0)), False)
sketch12.addGeometry(Part.ArcOfCircle(Part.Circle(App.Vector(-12.1, -150, 0), App.Vector(0, 0, 1), 12.9), math.radians(180), math.radians(265)), False)
sketch12.addGeometry(Part.ArcOfCircle(Part.Circle(App.Vector(-26, -190, 0), App.Vector(0, 0, 1), 30), math.radians(30), math.radians(65)), False)
sketch12.addGeometry(Part.Circle(App.Vector(-12.5, -150, 0), App.Vector(0, 0, 1), 11.1), False)
sketch12.addGeometry(Part.LineSegment(App.Vector(-25, -125, 0), App.Vector(0, -125, 0)), False)
sketch12.addGeometry(Part.ArcOfCircle(Part.Circle(App.Vector(-26, -110, 0), App.Vector(0, 0, 1), 30), math.radians(-65), math.radians(-30)), False)
sketch12.addGeometry(Part.ArcOfCircle(Part.Circle(App.Vector(-12.1, -150, 0), App.Vector(0, 0, 1), 12.9), math.radians(95), math.radians(180)), False)
sketch12.addGeometry(Part.LineSegment(App.Vector(-25, -150, 0), App.Vector(-25, -140, 0)), False)
sketch12.addGeometry(Part.LineSegment(App.Vector(-25, -140, 0), App.Vector(-26, -140, 0)), False)
sketch12.addGeometry(Part.ArcOfCircle(Part.Circle(App.Vector(-26, -110, 0), App.Vector(0, 0, 1), 30), math.radians(-90.08), math.radians(-88.13)), False)
sketch12.addGeometry(Part.LineSegment(App.Vector(-25, -140, 0), App.Vector(-25, -125, 0)), False)
sketch12.addConstraint(Sketcher.Constraint("Coincident", 0, 2, 1, 1))
sketch12.addConstraint(Sketcher.Constraint("Tangent", 1, 2, 2, 1))
sketch12.addConstraint(Sketcher.Constraint("Coincident", 2, 2, 3, 2))
sketch12.addConstraint(Sketcher.Constraint("Coincident", 3, 1, 0, 1))
sketch12.addConstraint(Sketcher.Constraint("Coincident", 5, 2, 6, 2))
sketch12.addConstraint(Sketcher.Constraint("Coincident", 6, 1, 7, 1))
sketch12.addConstraint(Sketcher.Constraint("Tangent", 7, 2, 8, 1))
sketch12.addConstraint(Sketcher.Constraint("Coincident", 8, 2, 9, 1))
sketch12.addConstraint(Sketcher.Constraint("Coincident", 9, 2, 10, 1))
sketch12.addConstraint(Sketcher.Constraint("Coincident", 10, 2, 11, 1))
sketch12.addConstraint(Sketcher.Constraint("Coincident", 11, 2, 5, 1))
sketch12.addConstraint(Sketcher.Constraint("Horizontal", 0))
sketch12.addConstraint(Sketcher.Constraint("Vertical", 1))
sketch12.addConstraint(Sketcher.Constraint("Horizontal", 5))
sketch12.addConstraint(Sketcher.Constraint("Vertical", 8))
sketch12.addConstraint(Sketcher.Constraint("Horizontal", 9))
sketch12.addConstraint(Sketcher.Constraint("Vertical", 11))
sketch12.addConstraint(Sketcher.Constraint("Coincident", 7, 3, 2, 3))
sketch12.addConstraint(Sketcher.Constraint("Coincident", 10, 3, 6, 3))
sketch12.addConstraint(Sketcher.Constraint("Equal", 3, 6))
sketch12.addConstraint(Sketcher.Constraint("Equal", 2, 7))
sketch12.addConstraint(Sketcher.Constraint("Equal", 6, 10))
sketch12.addConstraint(Sketcher.Constraint("PointOnObject", 3, 1, -2))
sketch12.addConstraint(Sketcher.Constraint("PointOnObject", 5, 2, -2))
sketch12.addConstraint(Sketcher.Constraint("Horizontal", 2, 3, 4, 3))
sketch12.addConstraint(Sketcher.Constraint("Vertical", 3, 3, 6, 3))
sketch12.addConstraint(Sketcher.Constraint("Vertical", 2, 2, 6, 1))
sketch12.addConstraint(Sketcher.Constraint("Vertical", 8, 2, 10, 2))
sketch12.addConstraint(Sketcher.Constraint("Equal", 5, 1))
sketch12.addConstraint(Sketcher.Constraint("Radius", 3, Q("30 mm")))
sketch12.addConstraint(Sketcher.Constraint("Diameter", 4, Q("22.2 mm")))
sketch12.addConstraint(Sketcher.Constraint("DistanceY", 3, 3, 0, 2, Q("15 mm")))
sketch12.addConstraint(Sketcher.Constraint("DistanceX", 0, 2, 0, 1, Q("25 mm")))
sketch12.addConstraint(Sketcher.Constraint("Radius", 2, Q("12.89 mm")))
sketch12.addConstraint(Sketcher.Constraint("DistanceY", 2, 3, -1, 1, Q("150 mm")))
sketch12.addConstraint(Sketcher.Constraint("DistanceX", 4, 3, -1, 1, Q("12.5 mm")))
sketch12.addConstraint(Sketcher.Constraint("DistanceX", 9, 2, 9, 1, Q("1.0252 mm")))
sketch12.setExpression("Constraints[29]", "Params.sketch12_radius")
sketch12.setExpression("Constraints[30]", "Params.sketch12_diameter")
sketch12.setExpression("Constraints[32]", "Params.sketch12_width")
sketch12.setExpression("Constraints[33]", "Params.sketch12_radius2")
pocket3 = body.newObject("PartDesign::Pocket", "Pocket002")
pocket3.Profile = sketch12
pocket3.Type = "ThroughAll"
pocket3.Reversed = True

# Sketch on XY plane
sketch13 = body.newObject("Sketcher::SketchObject", "Sketch012")
sketch13.AttachmentSupport = (doc.getObject("XY_Plane"), [""])
sketch13.MapMode = "FlatFace"
sketch13.AttachmentOffset = App.Placement(App.Vector(0, 0, -300), App.Rotation())
sketch13.addGeometry(Part.LineSegment(App.Vector(-26, 20, 0), App.Vector(-18, 20, 0)), False)
sketch13.addGeometry(Part.LineSegment(App.Vector(-18, 20, 0), App.Vector(-18, 18, 0)), False)
sketch13.addGeometry(Part.LineSegment(App.Vector(-18, 18, 0), App.Vector(-26, 18, 0)), False)
sketch13.addGeometry(Part.LineSegment(App.Vector(-26, 18, 0), App.Vector(-26, 20, 0)), False)
sketch13.addConstraint(Sketcher.Constraint("Coincident", 0, 2, 1, 1))
sketch13.addConstraint(Sketcher.Constraint("Coincident", 1, 2, 2, 1))
sketch13.addConstraint(Sketcher.Constraint("Coincident", 2, 2, 3, 1))
sketch13.addConstraint(Sketcher.Constraint("Coincident", 3, 2, 0, 1))
sketch13.addConstraint(Sketcher.Constraint("Horizontal", 0))
sketch13.addConstraint(Sketcher.Constraint("Vertical", 1))
sketch13.addConstraint(Sketcher.Constraint("Horizontal", 2))
sketch13.addConstraint(Sketcher.Constraint("Vertical", 3))
sketch13.addConstraint(Sketcher.Constraint("DistanceY", 1, 2, 1, 1, Q("2 mm")))
sketch13.addConstraint(Sketcher.Constraint("DistanceX", 0, 2, -1, 1, Q("18 mm")))
sketch13.addConstraint(Sketcher.Constraint("DistanceY", -1, 1, 1, 2, Q("18 mm")))
sketch13.addConstraint(Sketcher.Constraint("DistanceX", 0, 1, 0, 2, Q("8 mm")))
sketch13.setExpression("Constraints[8]", "Params.sketch13_height")
sketch13.setExpression("Constraints[11]", "Params.sketch13_width")
pocket4 = body.newObject("PartDesign::Pocket", "Pocket003")
pocket4.Profile = sketch13
pocket4.setExpression("Length", "Params.pocket4_length")
pocket4.Reversed = True

doc.recompute()
